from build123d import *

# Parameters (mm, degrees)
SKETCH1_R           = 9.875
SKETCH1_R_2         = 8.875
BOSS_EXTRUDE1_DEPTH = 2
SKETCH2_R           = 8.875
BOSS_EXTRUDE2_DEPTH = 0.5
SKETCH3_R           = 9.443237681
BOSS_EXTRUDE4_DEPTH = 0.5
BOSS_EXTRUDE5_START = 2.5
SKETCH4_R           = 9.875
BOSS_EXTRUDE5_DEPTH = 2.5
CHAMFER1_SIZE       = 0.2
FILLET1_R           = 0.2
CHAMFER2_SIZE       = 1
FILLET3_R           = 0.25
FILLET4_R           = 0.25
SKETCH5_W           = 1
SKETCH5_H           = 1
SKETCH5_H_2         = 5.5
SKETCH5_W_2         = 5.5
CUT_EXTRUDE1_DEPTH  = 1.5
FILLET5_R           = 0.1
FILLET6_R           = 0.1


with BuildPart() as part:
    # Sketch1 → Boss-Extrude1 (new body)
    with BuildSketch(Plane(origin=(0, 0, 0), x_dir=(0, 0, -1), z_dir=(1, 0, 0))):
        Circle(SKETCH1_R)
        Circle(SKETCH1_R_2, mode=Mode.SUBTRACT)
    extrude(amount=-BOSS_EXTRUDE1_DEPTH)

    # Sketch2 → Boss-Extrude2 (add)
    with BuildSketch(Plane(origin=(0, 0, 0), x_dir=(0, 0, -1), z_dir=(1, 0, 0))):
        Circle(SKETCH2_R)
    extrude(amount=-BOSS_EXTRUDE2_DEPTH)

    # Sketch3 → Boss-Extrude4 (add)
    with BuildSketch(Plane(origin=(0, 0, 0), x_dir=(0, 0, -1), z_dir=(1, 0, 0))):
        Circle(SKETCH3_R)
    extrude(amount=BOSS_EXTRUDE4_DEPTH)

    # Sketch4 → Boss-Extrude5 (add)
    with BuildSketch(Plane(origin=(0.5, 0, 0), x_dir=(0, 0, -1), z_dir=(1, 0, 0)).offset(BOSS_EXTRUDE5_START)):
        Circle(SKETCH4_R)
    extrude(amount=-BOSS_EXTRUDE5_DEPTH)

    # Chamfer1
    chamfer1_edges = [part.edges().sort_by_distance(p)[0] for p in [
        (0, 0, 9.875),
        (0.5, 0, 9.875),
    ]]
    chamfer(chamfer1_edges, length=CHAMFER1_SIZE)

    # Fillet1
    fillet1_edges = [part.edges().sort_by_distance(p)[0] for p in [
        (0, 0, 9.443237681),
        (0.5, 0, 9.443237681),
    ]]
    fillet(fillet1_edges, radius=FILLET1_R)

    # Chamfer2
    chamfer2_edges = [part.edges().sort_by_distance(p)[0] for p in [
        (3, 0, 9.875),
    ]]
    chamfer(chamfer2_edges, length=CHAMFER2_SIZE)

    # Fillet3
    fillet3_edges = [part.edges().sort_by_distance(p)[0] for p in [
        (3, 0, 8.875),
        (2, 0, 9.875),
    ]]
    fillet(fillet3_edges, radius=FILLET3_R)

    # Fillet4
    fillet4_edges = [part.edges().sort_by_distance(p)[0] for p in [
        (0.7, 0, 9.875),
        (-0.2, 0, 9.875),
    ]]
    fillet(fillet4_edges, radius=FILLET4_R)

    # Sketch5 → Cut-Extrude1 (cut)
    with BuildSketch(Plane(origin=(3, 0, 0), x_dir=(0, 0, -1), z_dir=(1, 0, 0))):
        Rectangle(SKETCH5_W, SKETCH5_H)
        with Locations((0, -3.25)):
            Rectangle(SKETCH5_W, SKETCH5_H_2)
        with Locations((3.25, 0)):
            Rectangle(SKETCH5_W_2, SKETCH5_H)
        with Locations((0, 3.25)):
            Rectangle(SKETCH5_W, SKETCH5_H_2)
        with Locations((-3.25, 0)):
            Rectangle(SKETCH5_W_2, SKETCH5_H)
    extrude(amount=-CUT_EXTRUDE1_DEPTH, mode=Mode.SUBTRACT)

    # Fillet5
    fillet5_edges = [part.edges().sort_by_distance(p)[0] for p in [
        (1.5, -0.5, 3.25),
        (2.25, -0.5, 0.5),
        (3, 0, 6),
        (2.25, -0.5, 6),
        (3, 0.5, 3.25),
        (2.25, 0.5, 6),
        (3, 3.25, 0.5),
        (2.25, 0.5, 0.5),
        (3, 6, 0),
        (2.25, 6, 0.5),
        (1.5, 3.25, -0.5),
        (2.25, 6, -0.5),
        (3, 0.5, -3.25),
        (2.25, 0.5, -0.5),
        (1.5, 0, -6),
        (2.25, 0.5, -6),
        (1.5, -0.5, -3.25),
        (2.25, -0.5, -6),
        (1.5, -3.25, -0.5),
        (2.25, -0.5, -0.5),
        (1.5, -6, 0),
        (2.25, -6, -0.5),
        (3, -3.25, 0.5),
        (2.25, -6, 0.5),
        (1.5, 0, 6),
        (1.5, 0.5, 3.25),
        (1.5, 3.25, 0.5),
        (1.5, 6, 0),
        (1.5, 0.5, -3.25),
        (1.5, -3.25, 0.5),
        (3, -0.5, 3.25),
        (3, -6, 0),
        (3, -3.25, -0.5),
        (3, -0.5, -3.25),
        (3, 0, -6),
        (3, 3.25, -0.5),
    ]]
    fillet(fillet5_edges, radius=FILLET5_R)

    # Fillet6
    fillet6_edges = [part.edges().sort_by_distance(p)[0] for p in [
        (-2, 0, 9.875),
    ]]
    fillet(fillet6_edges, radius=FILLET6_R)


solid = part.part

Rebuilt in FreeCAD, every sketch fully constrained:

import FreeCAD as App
import Part
import Sketcher

V = App.Vector
Q = App.Units.Quantity


def edges_at(feature, points):
    """Names of the edges that pass closest to the given points."""
    edges = feature.Shape.Edges
    near = lambda p: min(range(len(edges)), key=lambda i: edges[i].distToShape(Part.Vertex(*p))[0])
    return sorted({f"Edge{near(p) + 1}" for p in points})


def add_polygon(sketch, points):
    """Adds a closed chain of lines whose ends are joined by coincident constraints."""
    first, n = sketch.GeometryCount, len(points)
    for a, b in zip(points, points[1:] + points[:1]):
        sketch.addGeometry(Part.LineSegment(App.Vector(*a, 0), App.Vector(*b, 0)), False)
    for i in range(n):
        sketch.addConstraint(Sketcher.Constraint("Coincident", first + i, 2, first + (i + 1) % n, 1))

doc = App.newDocument("Part")
body = doc.addObject("PartDesign::Body", "Body")

# Sketch on YZ plane
sketch1 = body.newObject("Sketcher::SketchObject", "Sketch")
sketch1.AttachmentSupport = (doc.getObject("YZ_Plane"), [""])
sketch1.MapMode = "FlatFace"
sketch1.addGeometry(Part.Circle(V(0, 0, 0), V(0, 0, 1), 9.875), False)
sketch1.addGeometry(Part.Circle(V(0, 0, 0), V(0, 0, 1), 8.875), False)
sketch1.addConstraint(Sketcher.Constraint("Coincident", 0, 3, -1, 1))
sketch1.addConstraint(Sketcher.Constraint("Coincident", 1, 3, -1, 1))
sketch1.addConstraint(Sketcher.Constraint("Diameter", 0, Q("19.75 mm")))
sketch1.addConstraint(Sketcher.Constraint("Diameter", 1, Q("17.75 mm")))
pad1 = body.newObject("PartDesign::Pad", "Pad")
pad1.Profile = sketch1
pad1.Length = 2
pad1.Reversed = True

# Sketch on YZ plane
sketch2 = body.newObject("Sketcher::SketchObject", "Sketch001")
sketch2.AttachmentSupport = (doc.getObject("YZ_Plane"), [""])
sketch2.MapMode = "FlatFace"
sketch2.addGeometry(Part.Circle(V(0, 0, 0), V(0, 0, 1), 8.875), False)
sketch2.addConstraint(Sketcher.Constraint("Coincident", 0, 3, -1, 1))
sketch2.addConstraint(Sketcher.Constraint("Diameter", 0, Q("17.75 mm")))
pad2 = body.newObject("PartDesign::Pad", "Pad001")
pad2.Profile = sketch2
pad2.Length = 0.5
pad2.Reversed = True

# Sketch on YZ plane
sketch3 = body.newObject("Sketcher::SketchObject", "Sketch002")
sketch3.AttachmentSupport = (doc.getObject("YZ_Plane"), [""])
sketch3.MapMode = "FlatFace"
sketch3.addGeometry(Part.Circle(V(0, 0, 0), V(0, 0, 1), 9.443238), False)
sketch3.addConstraint(Sketcher.Constraint("Coincident", 0, 3, -1, 1))
sketch3.addConstraint(Sketcher.Constraint("Diameter", 0, Q("18.886475 mm")))
pad3 = body.newObject("PartDesign::Pad", "Pad002")
pad3.Profile = sketch3
pad3.Length = 0.5

# Sketch on YZ plane
sketch4 = body.newObject("Sketcher::SketchObject", "Sketch003")
sketch4.AttachmentSupport = (doc.getObject("YZ_Plane"), [""])
sketch4.MapMode = "FlatFace"
sketch4.AttachmentOffset = App.Placement(V(0, 0, 3), App.Rotation())
sketch4.addGeometry(Part.Circle(V(0, 0, 0), V(0, 0, 1), 9.875), False)
sketch4.addConstraint(Sketcher.Constraint("Coincident", 0, 3, -1, 1))
sketch4.addConstraint(Sketcher.Constraint("Diameter", 0, Q("19.75 mm")))
pad4 = body.newObject("PartDesign::Pad", "Pad003")
pad4.Profile = sketch4
pad4.Length = 2.5
pad4.Reversed = True
doc.recompute()

chamfer = body.newObject("PartDesign::Chamfer", "Chamfer")
chamfer.Base = (pad4, edges_at(pad4, [(0, 0, 9.875), (0.5, 0, 9.875)]))
chamfer.Size = 0.2
doc.recompute()

fillet = body.newObject("PartDesign::Fillet", "Fillet")
fillet.Base = (chamfer, edges_at(chamfer, [(0, 0, 9.443), (0.5, 0, 9.443)]))
fillet.Radius = 0.2
doc.recompute()

chamfer2 = body.newObject("PartDesign::Chamfer", "Chamfer001")
chamfer2.Base = (fillet, edges_at(fillet, [(3, 0, 9.875)]))
chamfer2.Size = 1
doc.recompute()

fillet2 = body.newObject("PartDesign::Fillet", "Fillet001")
fillet2.Base = (chamfer2, edges_at(chamfer2, [(3, 0, 8.875), (2, 0, 9.875)]))
fillet2.Radius = 0.25
doc.recompute()

fillet3 = body.newObject("PartDesign::Fillet", "Fillet002")
fillet3.Base = (fillet2, edges_at(fillet2, [(0.7, 0, 9.875), (-0.2, 0, 9.875)]))
fillet3.Radius = 0.25

# Sketch on YZ plane
sketch5 = body.newObject("Sketcher::SketchObject", "Sketch004")
sketch5.AttachmentSupport = (doc.getObject("YZ_Plane"), [""])
sketch5.MapMode = "FlatFace"
sketch5.AttachmentOffset = App.Placement(V(0, 0, 3), App.Rotation())
add_polygon(sketch5, [(-6, 0.5), (-6, -0.5), (-0.5, -0.5), (-0.5, -6), (0.5, -6), (0.5, -0.5), (6, -0.5), (6, 0.5), (0.5, 0.5), (0.5, 6), (-0.5, 6), (-0.5, 0.5)])  # lines 0-11
sketch5.addConstraint(Sketcher.Constraint("Vertical", 0))
sketch5.addConstraint(Sketcher.Constraint("Horizontal", 1))
sketch5.addConstraint(Sketcher.Constraint("Vertical", 2))
sketch5.addConstraint(Sketcher.Constraint("Horizontal", 3))
sketch5.addConstraint(Sketcher.Constraint("Vertical", 4))
sketch5.addConstraint(Sketcher.Constraint("Horizontal", 5))
sketch5.addConstraint(Sketcher.Constraint("Vertical", 6))
sketch5.addConstraint(Sketcher.Constraint("Horizontal", 7))
sketch5.addConstraint(Sketcher.Constraint("Vertical", 8))
sketch5.addConstraint(Sketcher.Constraint("Horizontal", 9))
sketch5.addConstraint(Sketcher.Constraint("Vertical", 10))
sketch5.addConstraint(Sketcher.Constraint("Horizontal", 11))
sketch5.addConstraint(Sketcher.Constraint("Symmetric", 0, 2, 6, 2, -1, 1))
sketch5.addConstraint(Sketcher.Constraint("Symmetric", 2, 2, 8, 2, -1, 1))
sketch5.addConstraint(Sketcher.Constraint("Symmetric", 4, 2, 10, 2, -1, 1))
sketch5.addConstraint(Sketcher.Constraint("Symmetric", 1, 2, 4, 2, -2))
sketch5.addConstraint(Sketcher.Constraint("Equal", 9, 0))
sketch5.addConstraint(Sketcher.Constraint("Equal", 11, 2))
sketch5.addConstraint(Sketcher.Constraint("DistanceX", 3, 1, 3, 2, Q("1 mm")))
sketch5.addConstraint(Sketcher.Constraint("DistanceX", 1, 1, 1, 2, Q("5.5 mm")))
pocket1 = body.newObject("PartDesign::Pocket", "Pocket")
pocket1.Profile = sketch5
pocket1.Length = 1.5
doc.recompute()

fillet4 = body.newObject("PartDesign::Fillet", "Fillet003")
fillet4.Base = (pocket1, edges_at(pocket1, [
    (1.5, -0.5, 3.25),
    (2.25, -0.5, 0.5),
    (3, 0, 6),
    (2.25, -0.5, 6),
    (3, 0.5, 3.25),
    (2.25, 0.5, 6),
    (3, 3.25, 0.5),
    (2.25, 0.5, 0.5),
    (3, 6, 0),
    (2.25, 6, 0.5),
    (1.5, 3.25, -0.5),
    (2.25, 6, -0.5),
    (3, 0.5, -3.25),
    (2.25, 0.5, -0.5),
    (1.5, 0, -6),
    (2.25, 0.5, -6),
    (1.5, -0.5, -3.25),
    (2.25, -0.5, -6),
    (1.5, -3.25, -0.5),
    (2.25, -0.5, -0.5),
    (1.5, -6, 0),
    (2.25, -6, -0.5),
    (3, -3.25, 0.5),
    (2.25, -6, 0.5),
    (1.5, 0, 6),
    (1.5, 0.5, 3.25),
    (1.5, 3.25, 0.5),
    (1.5, 6, 0),
    (1.5, 0.5, -3.25),
    (1.5, -3.25, 0.5),
    (3, -0.5, 3.25),
    (3, -6, 0),
    (3, -3.25, -0.5),
    (3, -0.5, -3.25),
    (3, 0, -6),
    (3, 3.25, -0.5),
]))
fillet4.Radius = 0.1
doc.recompute()

fillet5 = body.newObject("PartDesign::Fillet", "Fillet004")
fillet5.Base = (fillet4, edges_at(fillet4, [(-2, 0, 9.875)]))
fillet5.Radius = 0.1

doc.recompute()
